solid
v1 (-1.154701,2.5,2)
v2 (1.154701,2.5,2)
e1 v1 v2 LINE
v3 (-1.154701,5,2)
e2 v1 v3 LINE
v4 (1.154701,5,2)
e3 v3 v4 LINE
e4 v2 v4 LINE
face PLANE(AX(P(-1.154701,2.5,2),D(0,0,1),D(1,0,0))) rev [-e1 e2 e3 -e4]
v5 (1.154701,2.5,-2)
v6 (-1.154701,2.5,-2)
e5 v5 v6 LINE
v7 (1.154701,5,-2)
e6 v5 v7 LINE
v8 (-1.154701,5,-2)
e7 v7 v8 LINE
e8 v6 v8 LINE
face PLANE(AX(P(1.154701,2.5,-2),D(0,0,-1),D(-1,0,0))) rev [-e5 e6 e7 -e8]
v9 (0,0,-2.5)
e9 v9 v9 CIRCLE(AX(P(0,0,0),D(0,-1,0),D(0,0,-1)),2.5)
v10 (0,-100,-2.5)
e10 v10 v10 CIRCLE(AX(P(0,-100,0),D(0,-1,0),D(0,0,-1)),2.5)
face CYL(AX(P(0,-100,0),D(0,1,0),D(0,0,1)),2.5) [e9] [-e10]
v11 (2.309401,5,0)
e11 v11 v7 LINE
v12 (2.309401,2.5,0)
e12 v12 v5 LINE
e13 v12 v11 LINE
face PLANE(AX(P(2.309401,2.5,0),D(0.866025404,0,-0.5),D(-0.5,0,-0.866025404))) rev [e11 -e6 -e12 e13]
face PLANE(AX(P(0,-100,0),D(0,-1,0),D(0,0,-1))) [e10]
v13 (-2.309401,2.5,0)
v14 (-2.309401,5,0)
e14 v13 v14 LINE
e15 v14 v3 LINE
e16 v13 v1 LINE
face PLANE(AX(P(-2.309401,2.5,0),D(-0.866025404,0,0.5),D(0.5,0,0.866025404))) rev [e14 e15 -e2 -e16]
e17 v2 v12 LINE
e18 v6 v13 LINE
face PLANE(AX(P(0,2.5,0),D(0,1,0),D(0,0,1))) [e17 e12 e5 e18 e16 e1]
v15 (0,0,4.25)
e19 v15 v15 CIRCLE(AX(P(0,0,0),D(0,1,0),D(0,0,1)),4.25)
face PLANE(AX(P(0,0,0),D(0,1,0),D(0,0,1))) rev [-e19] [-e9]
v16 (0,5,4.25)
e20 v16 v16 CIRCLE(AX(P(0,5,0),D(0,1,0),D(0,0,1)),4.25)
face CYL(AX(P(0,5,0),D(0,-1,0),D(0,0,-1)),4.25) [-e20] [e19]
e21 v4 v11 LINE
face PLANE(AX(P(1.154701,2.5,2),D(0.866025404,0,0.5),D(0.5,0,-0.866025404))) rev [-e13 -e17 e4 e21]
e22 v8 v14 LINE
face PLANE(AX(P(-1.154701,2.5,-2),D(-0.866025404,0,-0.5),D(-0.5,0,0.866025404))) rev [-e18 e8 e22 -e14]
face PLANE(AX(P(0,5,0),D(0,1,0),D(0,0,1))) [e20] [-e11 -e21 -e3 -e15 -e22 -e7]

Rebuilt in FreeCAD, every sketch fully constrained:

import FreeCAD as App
import Part
import Sketcher

V = App.Vector
Q = App.Units.Quantity


def add_polygon(sketch, points):
    """Adds a closed chain of lines whose ends are joined by coincident constraints."""
    first, n = sketch.GeometryCount, len(points)
    for a, b in zip(points, points[1:] + points[:1]):
        sketch.addGeometry(Part.LineSegment(App.Vector(*a, 0), App.Vector(*b, 0)), False)
    for i in range(n):
        sketch.addConstraint(Sketcher.Constraint("Coincident", first + i, 2, first + (i + 1) % n, 1))

doc = App.newDocument("Part")
body = doc.addObject("PartDesign::Body", "Body")

# Sketch on XZ plane
sketch1 = doc.addObject("Sketcher::SketchObject", "Sketch")
body.addObject(sketch1)
sketch1.AttachmentSupport = (doc.XZ_Plane, [""])
sketch1.MapMode = "FlatFace"
sketch1.addGeometry(Part.Circle(V(0, 0, 0), V(0, 0, 1), 4.2), False)
sketch1.addConstraint([
    Sketcher.Constraint("Coincident", 0, 3, -1, 1),
    Sketcher.Constraint("Diameter", 0, Q("8.5 mm")),
])
pad1 = doc.addObject("PartDesign::Pad", "Pad")
body.addObject(pad1)
pad1.Profile = sketch1
pad1.Length = 5
pad1.Reversed = True

# Sketch on XZ plane
sketch2 = doc.addObject("Sketcher::SketchObject", "Sketch001")
body.addObject(sketch2)
sketch2.AttachmentSupport = (doc.XZ_Plane, [""])
sketch2.MapMode = "FlatFace"
sketch2.AttachmentOffset = App.Placement(V(0, 0, -5), App.Rotation())
add_polygon(sketch2, [(2.3, 0), (1.2, -2), (-1.2, -2), (-2.3, 0), (-1.2, 2), (1.2, 2)])  # lines 0-5
sketch2.addConstraint([
    Sketcher.Constraint("Horizontal", 1),
    Sketcher.Constraint("Horizontal", 4),
    Sketcher.Constraint("Symmetric", 0, 2, 3, 2, -1, 1),
    Sketcher.Constraint("Symmetric", 2, 2, 5, 2, -1, 1),
    Sketcher.Constraint("PointOnObject", 2, 2, -1),
    Sketcher.Constraint("Parallel", 2, 5),
    Sketcher.Constraint("Vertical", 1, 2, 3, 2),
    Sketcher.Constraint("Angle", 0, Q("-120 deg")),
    Sketcher.Constraint("DistanceY", 0, 2, -1, 1, Q("2 mm")),
    Sketcher.Constraint("DistanceX", 1, 2, 1, 1, Q("2.309401 mm")),
])
pocket1 = doc.addObject("PartDesign::Pocket", "Pocket")
body.addObject(pocket1)
pocket1.Profile = sketch2
pocket1.Length = 2.5
pocket1.Reversed = True

# Sketch on XZ plane
sketch3 = doc.addObject("Sketcher::SketchObject", "Sketch002")
body.addObject(sketch3)
sketch3.AttachmentSupport = (doc.XZ_Plane, [""])
sketch3.MapMode = "FlatFace"
sketch3.addGeometry(Part.Circle(V(0, 0, 0), V(0, 0, 1), 2.5), False)
sketch3.addConstraint([
    Sketcher.Constraint("Coincident", 0, 3, -1, 1),
    Sketcher.Constraint("Diameter", 0, Q("5 mm")),
])
pad2 = doc.addObject("PartDesign::Pad", "Pad001")
body.addObject(pad2)
pad2.Profile = sketch3
pad2.Length = 100

doc.recompute()
